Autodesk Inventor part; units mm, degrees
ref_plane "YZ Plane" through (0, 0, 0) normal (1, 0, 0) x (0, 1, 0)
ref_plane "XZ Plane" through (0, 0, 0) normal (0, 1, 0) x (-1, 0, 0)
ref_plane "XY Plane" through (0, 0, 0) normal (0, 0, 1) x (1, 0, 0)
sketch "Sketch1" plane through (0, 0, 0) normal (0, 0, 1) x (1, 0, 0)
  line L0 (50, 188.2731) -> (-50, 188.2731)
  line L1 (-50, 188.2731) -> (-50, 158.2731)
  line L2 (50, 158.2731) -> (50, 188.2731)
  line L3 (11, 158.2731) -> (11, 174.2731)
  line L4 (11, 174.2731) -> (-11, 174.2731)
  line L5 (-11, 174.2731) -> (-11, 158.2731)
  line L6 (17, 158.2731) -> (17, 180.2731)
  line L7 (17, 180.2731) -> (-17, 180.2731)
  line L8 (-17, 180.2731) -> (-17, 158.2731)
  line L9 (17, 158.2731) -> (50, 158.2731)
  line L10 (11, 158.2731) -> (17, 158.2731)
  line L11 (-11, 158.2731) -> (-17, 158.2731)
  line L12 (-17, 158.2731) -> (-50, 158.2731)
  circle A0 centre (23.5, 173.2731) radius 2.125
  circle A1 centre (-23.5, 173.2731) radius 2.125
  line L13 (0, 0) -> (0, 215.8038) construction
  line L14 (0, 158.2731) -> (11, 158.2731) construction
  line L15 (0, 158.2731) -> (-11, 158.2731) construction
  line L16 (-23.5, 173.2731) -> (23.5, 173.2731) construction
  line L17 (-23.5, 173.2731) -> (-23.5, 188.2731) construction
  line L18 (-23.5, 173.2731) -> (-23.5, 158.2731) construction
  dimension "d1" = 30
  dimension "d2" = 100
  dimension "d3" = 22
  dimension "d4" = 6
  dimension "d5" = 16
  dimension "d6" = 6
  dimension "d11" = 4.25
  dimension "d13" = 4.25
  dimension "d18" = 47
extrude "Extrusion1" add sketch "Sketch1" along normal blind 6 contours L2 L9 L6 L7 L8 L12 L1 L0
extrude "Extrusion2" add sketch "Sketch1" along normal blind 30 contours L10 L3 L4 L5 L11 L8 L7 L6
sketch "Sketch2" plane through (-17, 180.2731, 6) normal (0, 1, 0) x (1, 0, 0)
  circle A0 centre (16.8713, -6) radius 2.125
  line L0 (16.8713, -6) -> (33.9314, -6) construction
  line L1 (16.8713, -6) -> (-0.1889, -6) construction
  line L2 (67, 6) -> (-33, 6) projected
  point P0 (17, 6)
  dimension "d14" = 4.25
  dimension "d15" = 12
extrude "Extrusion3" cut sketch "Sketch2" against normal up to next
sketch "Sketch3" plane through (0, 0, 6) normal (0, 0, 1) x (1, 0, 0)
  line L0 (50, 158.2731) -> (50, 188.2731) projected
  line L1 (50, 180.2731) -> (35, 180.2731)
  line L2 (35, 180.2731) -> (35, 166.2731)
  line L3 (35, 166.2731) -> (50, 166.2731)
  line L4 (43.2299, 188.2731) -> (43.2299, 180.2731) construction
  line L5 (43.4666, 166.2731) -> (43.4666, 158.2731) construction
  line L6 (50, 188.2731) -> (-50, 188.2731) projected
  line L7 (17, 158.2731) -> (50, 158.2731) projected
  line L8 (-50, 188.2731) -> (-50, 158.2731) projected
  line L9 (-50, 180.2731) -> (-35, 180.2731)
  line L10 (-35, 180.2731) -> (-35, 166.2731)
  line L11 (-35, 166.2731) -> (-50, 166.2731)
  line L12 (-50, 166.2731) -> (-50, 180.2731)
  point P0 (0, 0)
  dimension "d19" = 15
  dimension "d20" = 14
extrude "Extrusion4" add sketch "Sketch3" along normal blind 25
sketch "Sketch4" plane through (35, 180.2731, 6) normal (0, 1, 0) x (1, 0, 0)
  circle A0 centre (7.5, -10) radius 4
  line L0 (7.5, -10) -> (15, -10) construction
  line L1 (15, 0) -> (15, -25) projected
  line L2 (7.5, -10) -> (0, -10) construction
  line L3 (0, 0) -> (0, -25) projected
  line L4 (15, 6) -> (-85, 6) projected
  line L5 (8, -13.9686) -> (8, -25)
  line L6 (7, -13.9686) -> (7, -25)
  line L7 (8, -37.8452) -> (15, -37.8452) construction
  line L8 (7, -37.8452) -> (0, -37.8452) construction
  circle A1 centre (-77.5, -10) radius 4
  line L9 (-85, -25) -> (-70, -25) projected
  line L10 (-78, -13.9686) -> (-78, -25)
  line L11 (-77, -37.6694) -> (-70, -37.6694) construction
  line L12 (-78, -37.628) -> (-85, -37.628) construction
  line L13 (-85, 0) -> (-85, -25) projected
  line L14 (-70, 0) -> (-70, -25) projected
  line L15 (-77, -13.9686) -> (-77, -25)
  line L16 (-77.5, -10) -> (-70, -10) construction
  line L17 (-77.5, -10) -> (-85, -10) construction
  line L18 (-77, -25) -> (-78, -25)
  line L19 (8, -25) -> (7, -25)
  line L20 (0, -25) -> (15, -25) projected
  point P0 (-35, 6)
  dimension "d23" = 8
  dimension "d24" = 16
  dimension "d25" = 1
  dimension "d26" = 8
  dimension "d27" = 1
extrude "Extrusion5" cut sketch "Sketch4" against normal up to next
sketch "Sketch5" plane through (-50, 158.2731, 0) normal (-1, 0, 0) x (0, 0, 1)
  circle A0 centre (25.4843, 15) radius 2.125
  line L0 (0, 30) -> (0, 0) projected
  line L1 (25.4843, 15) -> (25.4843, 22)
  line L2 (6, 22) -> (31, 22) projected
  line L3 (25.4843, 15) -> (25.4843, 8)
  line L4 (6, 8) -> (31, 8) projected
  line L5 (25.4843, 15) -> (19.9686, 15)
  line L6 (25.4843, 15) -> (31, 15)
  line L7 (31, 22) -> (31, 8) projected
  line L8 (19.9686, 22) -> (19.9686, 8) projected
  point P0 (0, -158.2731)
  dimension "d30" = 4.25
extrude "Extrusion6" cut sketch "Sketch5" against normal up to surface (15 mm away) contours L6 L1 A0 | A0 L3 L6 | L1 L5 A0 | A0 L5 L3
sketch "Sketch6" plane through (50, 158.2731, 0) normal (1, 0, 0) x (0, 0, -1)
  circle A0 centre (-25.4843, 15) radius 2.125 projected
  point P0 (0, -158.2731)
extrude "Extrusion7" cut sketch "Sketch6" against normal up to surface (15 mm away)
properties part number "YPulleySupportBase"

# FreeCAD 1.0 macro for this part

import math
import FreeCAD as App
import Part
import Sketcher

V = App.Vector
Q = App.Units.Quantity


def add_polygon(sketch, points):
    """Adds a closed chain of lines whose ends are joined by coincident constraints."""
    first, n = sketch.GeometryCount, len(points)
    for a, b in zip(points, points[1:] + points[:1]):
        sketch.addGeometry(Part.LineSegment(App.Vector(*a, 0), App.Vector(*b, 0)), False)
    for i in range(n):
        sketch.addConstraint(Sketcher.Constraint("Coincident", first + i, 2, first + (i + 1) % n, 1))

doc = App.newDocument("Part")
body = doc.addObject("PartDesign::Body", "Body")

# Sketch on XY plane
sketch1 = doc.addObject("Sketcher::SketchObject", "Sketch")
body.addObject(sketch1)
sketch1.AttachmentSupport = (doc.XY_Plane, [""])
sketch1.MapMode = "FlatFace"
add_polygon(sketch1, [(50, 158.3), (50, 188.3), (-50, 188.3), (-50, 158.3), (-17, 158.3), (-17, 180.3), (17, 180.3), (17, 158.3)])  # lines 0-7
sketch1.addGeometry(Part.Circle(V(-23.5, 173.3, 0), V(0, 0, 1), 2.1), False)  # 8
sketch1.addGeometry(Part.Circle(V(23.5, 173.3, 0), V(0, 0, 1), 2.1), False)  # 9
sketch1.addConstraint([
    Sketcher.Constraint("Vertical", 0),
    Sketcher.Constraint("Horizontal", 1),
    Sketcher.Constraint("Vertical", 2),
    Sketcher.Constraint("Horizontal", 3),
    Sketcher.Constraint("Vertical", 4),
    Sketcher.Constraint("Horizontal", 5),
    Sketcher.Constraint("Vertical", 6),
    Sketcher.Constraint("Horizontal", 7),
    Sketcher.Constraint("Equal", 8, 9),
    Sketcher.Constraint("Symmetric", 8, 3, 9, 3, -2),
    Sketcher.Constraint("Symmetric", 3, 2, 6, 2, -2),
    Sketcher.Constraint("Equal", 3, 7),
    Sketcher.Constraint("Diameter", 8, Q("4.25 mm")),
    Sketcher.Constraint("DistanceX", 1, 2, 1, 1, Q("100 mm")),
    Sketcher.Constraint("DistanceY", 0, 1, 0, 2, Q("30 mm")),
    Sketcher.Constraint("DistanceY", 4, 1, 4, 2, Q("22 mm")),
    Sketcher.Constraint("DistanceX", 8, 3, 9, 3, Q("47 mm")),
    Sketcher.Constraint("DistanceX", 3, 1, 3, 2, Q("33 mm")),
    Sketcher.Constraint("DistanceY", 9, 3, 0, 2, Q("15 mm")),
    Sketcher.Constraint("DistanceY", -1, 1, 8, 3, Q("173.273 mm")),
])
pad1 = doc.addObject("PartDesign::Pad", "Pad")
body.addObject(pad1)
pad1.Profile = sketch1
pad1.Length = 6

# Sketch on XY plane
sketch2 = doc.addObject("Sketcher::SketchObject", "Sketch001")
body.addObject(sketch2)
sketch2.AttachmentSupport = (doc.XY_Plane, [""])
sketch2.MapMode = "FlatFace"
add_polygon(sketch2, [(11, 158), (17, 158), (17, 180), (-17, 180), (-17, 158), (-11, 158), (-11, 174), (11, 174)])  # lines 0-7
sketch2.addConstraint([
    Sketcher.Constraint("Horizontal", 0),
    Sketcher.Constraint("Vertical", 1),
    Sketcher.Constraint("Horizontal", 2),
    Sketcher.Constraint("Vertical", 3),
    Sketcher.Constraint("Horizontal", 4),
    Sketcher.Constraint("Vertical", 5),
    Sketcher.Constraint("Horizontal", 6),
    Sketcher.Constraint("Vertical", 7),
    Sketcher.Constraint("Symmetric", 0, 2, 3, 2, -2),
    Sketcher.Constraint("Equal", 0, 4),
    Sketcher.Constraint("Equal", 6, 1),
    Sketcher.Constraint("DistanceX", 0, 1, 0, 2, Q("6 mm")),
    Sketcher.Constraint("DistanceX", 6, 1, 6, 2, Q("22 mm")),
    Sketcher.Constraint("DistanceY", 5, 1, 5, 2, Q("16 mm")),
    Sketcher.Constraint("DistanceY", -1, 1, 0, 2, Q("158.273 mm")),
])
pad2 = doc.addObject("PartDesign::Pad", "Pad001")
body.addObject(pad2)
pad2.Profile = sketch2
pad2.Length = 30

# Sketch on XZ plane
sketch3 = doc.addObject("Sketcher::SketchObject", "Sketch002")
body.addObject(sketch3)
sketch3.AttachmentSupport = (doc.XZ_Plane, [""])
sketch3.MapMode = "FlatFace"
sketch3.AttachmentOffset = App.Placement(V(0, 0, -180.2731), App.Rotation())
sketch3.addGeometry(Part.Circle(V(-0.1, 12, 0), V(0, 0, 1), 2.1), False)
sketch3.addConstraint([
    Sketcher.Constraint("Diameter", 0, Q("4.25 mm")),
    Sketcher.Constraint("DistanceY", -1, 1, 0, 3, Q("12 mm")),
    Sketcher.Constraint("DistanceX", 0, 3, -1, 1, Q("0.1287 mm")),
])
pocket1 = doc.addObject("PartDesign::Pocket", "Pocket")
body.addObject(pocket1)
pocket1.Profile = sketch3
pocket1.Type = "UpToFirst"
pocket1.Reversed = True

# Sketch on XY plane
sketch4 = doc.addObject("Sketcher::SketchObject", "Sketch003")
body.addObject(sketch4)
sketch4.AttachmentSupport = (doc.XY_Plane, [""])
sketch4.MapMode = "FlatFace"
sketch4.AttachmentOffset = App.Placement(V(0, 0, 6), App.Rotation())
add_polygon(sketch4, [(35, 166), (50, 166), (50, 180), (35, 180)])  # lines 0-3
add_polygon(sketch4, [(-35, 180), (-50, 180), (-50, 166), (-35, 166)])  # lines 4-7
sketch4.addConstraint([
    Sketcher.Constraint("Horizontal", 0),
    Sketcher.Constraint("Vertical", 1),
    Sketcher.Constraint("Horizontal", 2),
    Sketcher.Constraint("Vertical", 3),
    Sketcher.Constraint("Horizontal", 4),
    Sketcher.Constraint("Vertical", 5),
    Sketcher.Constraint("Horizontal", 6),
    Sketcher.Constraint("Vertical", 7),
    Sketcher.Constraint("Symmetric", 1, 2, 4, 2, -2),
    Sketcher.Constraint("Symmetric", 3, 2, 6, 2, -2),
    Sketcher.Constraint("DistanceX", 0, 1, 0, 2, Q("15 mm")),
    Sketcher.Constraint("DistanceY", 1, 1, 1, 2, Q("14 mm")),
    Sketcher.Constraint("DistanceX", -1, 1, 0, 2, Q("50 mm")),
    Sketcher.Constraint("DistanceY", -1, 1, 0, 2, Q("166.273 mm")),
])
pad3 = doc.addObject("PartDesign::Pad", "Pad002")
body.addObject(pad3)
pad3.Profile = sketch4
pad3.Length = 25

# Sketch on XZ plane
sketch5 = doc.addObject("Sketcher::SketchObject", "Sketch004")
body.addObject(sketch5)
sketch5.AttachmentSupport = (doc.XZ_Plane, [""])
sketch5.MapMode = "FlatFace"
sketch5.AttachmentOffset = App.Placement(V(0, 0, -180.2731), App.Rotation())
sketch5.addGeometry([
    Part.ArcOfCircle(Part.Circle(V(42.5, 16, 0), V(0, 0, 1), 4), math.radians(97), math.radians(443)),  # 0
    Part.LineSegment(V(42, 20, 0), V(42, 31, 0)),  # 1
    Part.LineSegment(V(42, 31, 0), V(43, 31, 0)),  # 2
    Part.LineSegment(V(43, 31, 0), V(43, 20, 0)),  # 3
    Part.ArcOfCircle(Part.Circle(V(-42.5, 16, 0), V(0, 0, 1), 4), math.radians(97), math.radians(443)),  # 4
    Part.LineSegment(V(-43, 20, 0), V(-43, 31, 0)),  # 5
    Part.LineSegment(V(-43, 31, 0), V(-42, 31, 0)),  # 6
    Part.LineSegment(V(-42, 31, 0), V(-42, 20, 0)),  # 7
], False)
sketch5.addConstraint([
    Sketcher.Constraint("Coincident", 0, 1, 1, 1),
    Sketcher.Constraint("Coincident", 1, 2, 2, 1),
    Sketcher.Constraint("Coincident", 2, 2, 3, 1),
    Sketcher.Constraint("Coincident", 3, 2, 0, 2),
    Sketcher.Constraint("Coincident", 4, 1, 5, 1),
    Sketcher.Constraint("Coincident", 5, 2, 6, 1),
    Sketcher.Constraint("Coincident", 6, 2, 7, 1),
    Sketcher.Constraint("Coincident", 7, 2, 4, 2),
    Sketcher.Constraint("Vertical", 1),
    Sketcher.Constraint("Horizontal", 2),
    Sketcher.Constraint("Vertical", 3),
    Sketcher.Constraint("Vertical", 5),
    Sketcher.Constraint("Horizontal", 6),
    Sketcher.Constraint("Vertical", 7),
    Sketcher.Constraint("Equal", 0, 4),
    Sketcher.Constraint("Symmetric", 0, 3, 4, 3, -2),
    Sketcher.Constraint("Symmetric", 2, 2, 5, 2, -2),
    Sketcher.Constraint("Horizontal", 0, 1, 3, 2),
    Sketcher.Constraint("Horizontal", 4, 1, 7, 2),
    Sketcher.Constraint("Radius", 0, Q("4 mm")),
    Sketcher.Constraint("DistanceX", 2, 1, 2, 2, Q("1 mm")),
    Sketcher.Constraint("DistanceY", -1, 1, 0, 3, Q("16 mm")),
    Sketcher.Constraint("DistanceX", -1, 1, 0, 1, Q("42 mm")),
    Sketcher.Constraint("DistanceY", -1, 1, 1, 2, Q("31 mm")),
])
pocket2 = doc.addObject("PartDesign::Pocket", "Pocket001")
body.addObject(pocket2)
pocket2.Profile = sketch5
pocket2.Length = 14
pocket2.Reversed = True

# Sketch on YZ plane
sketch6 = doc.addObject("Sketcher::SketchObject", "Sketch005")
body.addObject(sketch6)
sketch6.AttachmentSupport = (doc.YZ_Plane, [""])
sketch6.MapMode = "FlatFace"
sketch6.AttachmentOffset = App.Placement(V(0, 0, -50), App.Rotation())
sketch6.addGeometry(Part.Circle(V(173.3, 25.5, 0), V(0, 0, 1), 2.1), False)
sketch6.addConstraint([
    Sketcher.Constraint("Diameter", 0, Q("4.25 mm")),
    Sketcher.Constraint("DistanceX", -1, 1, 0, 3, Q("173.273 mm")),
    Sketcher.Constraint("DistanceY", -1, 1, 0, 3, Q("25.4843 mm")),
])
pocket3 = doc.addObject("PartDesign::Pocket", "Pocket002")
body.addObject(pocket3)
pocket3.Profile = sketch6
pocket3.Length = 15
pocket3.Reversed = True

# Sketch on YZ plane
sketch7 = doc.addObject("Sketcher::SketchObject", "Sketch006")
body.addObject(sketch7)
sketch7.AttachmentSupport = (doc.YZ_Plane, [""])
sketch7.MapMode = "FlatFace"
sketch7.AttachmentOffset = App.Placement(V(0, 0, 50), App.Rotation())
sketch7.addGeometry(Part.Circle(V(173.3, 25.5, 0), V(0, 0, 1), 2.1), False)
sketch7.addConstraint([
    Sketcher.Constraint("Diameter", 0, Q("4.25 mm")),
    Sketcher.Constraint("DistanceX", -1, 1, 0, 3, Q("173.273 mm")),
    Sketcher.Constraint("DistanceY", -1, 1, 0, 3, Q("25.4843 mm")),
])
pocket4 = doc.addObject("PartDesign::Pocket", "Pocket003")
body.addObject(pocket4)
pocket4.Profile = sketch7
pocket4.Length = 15

doc.recompute()
